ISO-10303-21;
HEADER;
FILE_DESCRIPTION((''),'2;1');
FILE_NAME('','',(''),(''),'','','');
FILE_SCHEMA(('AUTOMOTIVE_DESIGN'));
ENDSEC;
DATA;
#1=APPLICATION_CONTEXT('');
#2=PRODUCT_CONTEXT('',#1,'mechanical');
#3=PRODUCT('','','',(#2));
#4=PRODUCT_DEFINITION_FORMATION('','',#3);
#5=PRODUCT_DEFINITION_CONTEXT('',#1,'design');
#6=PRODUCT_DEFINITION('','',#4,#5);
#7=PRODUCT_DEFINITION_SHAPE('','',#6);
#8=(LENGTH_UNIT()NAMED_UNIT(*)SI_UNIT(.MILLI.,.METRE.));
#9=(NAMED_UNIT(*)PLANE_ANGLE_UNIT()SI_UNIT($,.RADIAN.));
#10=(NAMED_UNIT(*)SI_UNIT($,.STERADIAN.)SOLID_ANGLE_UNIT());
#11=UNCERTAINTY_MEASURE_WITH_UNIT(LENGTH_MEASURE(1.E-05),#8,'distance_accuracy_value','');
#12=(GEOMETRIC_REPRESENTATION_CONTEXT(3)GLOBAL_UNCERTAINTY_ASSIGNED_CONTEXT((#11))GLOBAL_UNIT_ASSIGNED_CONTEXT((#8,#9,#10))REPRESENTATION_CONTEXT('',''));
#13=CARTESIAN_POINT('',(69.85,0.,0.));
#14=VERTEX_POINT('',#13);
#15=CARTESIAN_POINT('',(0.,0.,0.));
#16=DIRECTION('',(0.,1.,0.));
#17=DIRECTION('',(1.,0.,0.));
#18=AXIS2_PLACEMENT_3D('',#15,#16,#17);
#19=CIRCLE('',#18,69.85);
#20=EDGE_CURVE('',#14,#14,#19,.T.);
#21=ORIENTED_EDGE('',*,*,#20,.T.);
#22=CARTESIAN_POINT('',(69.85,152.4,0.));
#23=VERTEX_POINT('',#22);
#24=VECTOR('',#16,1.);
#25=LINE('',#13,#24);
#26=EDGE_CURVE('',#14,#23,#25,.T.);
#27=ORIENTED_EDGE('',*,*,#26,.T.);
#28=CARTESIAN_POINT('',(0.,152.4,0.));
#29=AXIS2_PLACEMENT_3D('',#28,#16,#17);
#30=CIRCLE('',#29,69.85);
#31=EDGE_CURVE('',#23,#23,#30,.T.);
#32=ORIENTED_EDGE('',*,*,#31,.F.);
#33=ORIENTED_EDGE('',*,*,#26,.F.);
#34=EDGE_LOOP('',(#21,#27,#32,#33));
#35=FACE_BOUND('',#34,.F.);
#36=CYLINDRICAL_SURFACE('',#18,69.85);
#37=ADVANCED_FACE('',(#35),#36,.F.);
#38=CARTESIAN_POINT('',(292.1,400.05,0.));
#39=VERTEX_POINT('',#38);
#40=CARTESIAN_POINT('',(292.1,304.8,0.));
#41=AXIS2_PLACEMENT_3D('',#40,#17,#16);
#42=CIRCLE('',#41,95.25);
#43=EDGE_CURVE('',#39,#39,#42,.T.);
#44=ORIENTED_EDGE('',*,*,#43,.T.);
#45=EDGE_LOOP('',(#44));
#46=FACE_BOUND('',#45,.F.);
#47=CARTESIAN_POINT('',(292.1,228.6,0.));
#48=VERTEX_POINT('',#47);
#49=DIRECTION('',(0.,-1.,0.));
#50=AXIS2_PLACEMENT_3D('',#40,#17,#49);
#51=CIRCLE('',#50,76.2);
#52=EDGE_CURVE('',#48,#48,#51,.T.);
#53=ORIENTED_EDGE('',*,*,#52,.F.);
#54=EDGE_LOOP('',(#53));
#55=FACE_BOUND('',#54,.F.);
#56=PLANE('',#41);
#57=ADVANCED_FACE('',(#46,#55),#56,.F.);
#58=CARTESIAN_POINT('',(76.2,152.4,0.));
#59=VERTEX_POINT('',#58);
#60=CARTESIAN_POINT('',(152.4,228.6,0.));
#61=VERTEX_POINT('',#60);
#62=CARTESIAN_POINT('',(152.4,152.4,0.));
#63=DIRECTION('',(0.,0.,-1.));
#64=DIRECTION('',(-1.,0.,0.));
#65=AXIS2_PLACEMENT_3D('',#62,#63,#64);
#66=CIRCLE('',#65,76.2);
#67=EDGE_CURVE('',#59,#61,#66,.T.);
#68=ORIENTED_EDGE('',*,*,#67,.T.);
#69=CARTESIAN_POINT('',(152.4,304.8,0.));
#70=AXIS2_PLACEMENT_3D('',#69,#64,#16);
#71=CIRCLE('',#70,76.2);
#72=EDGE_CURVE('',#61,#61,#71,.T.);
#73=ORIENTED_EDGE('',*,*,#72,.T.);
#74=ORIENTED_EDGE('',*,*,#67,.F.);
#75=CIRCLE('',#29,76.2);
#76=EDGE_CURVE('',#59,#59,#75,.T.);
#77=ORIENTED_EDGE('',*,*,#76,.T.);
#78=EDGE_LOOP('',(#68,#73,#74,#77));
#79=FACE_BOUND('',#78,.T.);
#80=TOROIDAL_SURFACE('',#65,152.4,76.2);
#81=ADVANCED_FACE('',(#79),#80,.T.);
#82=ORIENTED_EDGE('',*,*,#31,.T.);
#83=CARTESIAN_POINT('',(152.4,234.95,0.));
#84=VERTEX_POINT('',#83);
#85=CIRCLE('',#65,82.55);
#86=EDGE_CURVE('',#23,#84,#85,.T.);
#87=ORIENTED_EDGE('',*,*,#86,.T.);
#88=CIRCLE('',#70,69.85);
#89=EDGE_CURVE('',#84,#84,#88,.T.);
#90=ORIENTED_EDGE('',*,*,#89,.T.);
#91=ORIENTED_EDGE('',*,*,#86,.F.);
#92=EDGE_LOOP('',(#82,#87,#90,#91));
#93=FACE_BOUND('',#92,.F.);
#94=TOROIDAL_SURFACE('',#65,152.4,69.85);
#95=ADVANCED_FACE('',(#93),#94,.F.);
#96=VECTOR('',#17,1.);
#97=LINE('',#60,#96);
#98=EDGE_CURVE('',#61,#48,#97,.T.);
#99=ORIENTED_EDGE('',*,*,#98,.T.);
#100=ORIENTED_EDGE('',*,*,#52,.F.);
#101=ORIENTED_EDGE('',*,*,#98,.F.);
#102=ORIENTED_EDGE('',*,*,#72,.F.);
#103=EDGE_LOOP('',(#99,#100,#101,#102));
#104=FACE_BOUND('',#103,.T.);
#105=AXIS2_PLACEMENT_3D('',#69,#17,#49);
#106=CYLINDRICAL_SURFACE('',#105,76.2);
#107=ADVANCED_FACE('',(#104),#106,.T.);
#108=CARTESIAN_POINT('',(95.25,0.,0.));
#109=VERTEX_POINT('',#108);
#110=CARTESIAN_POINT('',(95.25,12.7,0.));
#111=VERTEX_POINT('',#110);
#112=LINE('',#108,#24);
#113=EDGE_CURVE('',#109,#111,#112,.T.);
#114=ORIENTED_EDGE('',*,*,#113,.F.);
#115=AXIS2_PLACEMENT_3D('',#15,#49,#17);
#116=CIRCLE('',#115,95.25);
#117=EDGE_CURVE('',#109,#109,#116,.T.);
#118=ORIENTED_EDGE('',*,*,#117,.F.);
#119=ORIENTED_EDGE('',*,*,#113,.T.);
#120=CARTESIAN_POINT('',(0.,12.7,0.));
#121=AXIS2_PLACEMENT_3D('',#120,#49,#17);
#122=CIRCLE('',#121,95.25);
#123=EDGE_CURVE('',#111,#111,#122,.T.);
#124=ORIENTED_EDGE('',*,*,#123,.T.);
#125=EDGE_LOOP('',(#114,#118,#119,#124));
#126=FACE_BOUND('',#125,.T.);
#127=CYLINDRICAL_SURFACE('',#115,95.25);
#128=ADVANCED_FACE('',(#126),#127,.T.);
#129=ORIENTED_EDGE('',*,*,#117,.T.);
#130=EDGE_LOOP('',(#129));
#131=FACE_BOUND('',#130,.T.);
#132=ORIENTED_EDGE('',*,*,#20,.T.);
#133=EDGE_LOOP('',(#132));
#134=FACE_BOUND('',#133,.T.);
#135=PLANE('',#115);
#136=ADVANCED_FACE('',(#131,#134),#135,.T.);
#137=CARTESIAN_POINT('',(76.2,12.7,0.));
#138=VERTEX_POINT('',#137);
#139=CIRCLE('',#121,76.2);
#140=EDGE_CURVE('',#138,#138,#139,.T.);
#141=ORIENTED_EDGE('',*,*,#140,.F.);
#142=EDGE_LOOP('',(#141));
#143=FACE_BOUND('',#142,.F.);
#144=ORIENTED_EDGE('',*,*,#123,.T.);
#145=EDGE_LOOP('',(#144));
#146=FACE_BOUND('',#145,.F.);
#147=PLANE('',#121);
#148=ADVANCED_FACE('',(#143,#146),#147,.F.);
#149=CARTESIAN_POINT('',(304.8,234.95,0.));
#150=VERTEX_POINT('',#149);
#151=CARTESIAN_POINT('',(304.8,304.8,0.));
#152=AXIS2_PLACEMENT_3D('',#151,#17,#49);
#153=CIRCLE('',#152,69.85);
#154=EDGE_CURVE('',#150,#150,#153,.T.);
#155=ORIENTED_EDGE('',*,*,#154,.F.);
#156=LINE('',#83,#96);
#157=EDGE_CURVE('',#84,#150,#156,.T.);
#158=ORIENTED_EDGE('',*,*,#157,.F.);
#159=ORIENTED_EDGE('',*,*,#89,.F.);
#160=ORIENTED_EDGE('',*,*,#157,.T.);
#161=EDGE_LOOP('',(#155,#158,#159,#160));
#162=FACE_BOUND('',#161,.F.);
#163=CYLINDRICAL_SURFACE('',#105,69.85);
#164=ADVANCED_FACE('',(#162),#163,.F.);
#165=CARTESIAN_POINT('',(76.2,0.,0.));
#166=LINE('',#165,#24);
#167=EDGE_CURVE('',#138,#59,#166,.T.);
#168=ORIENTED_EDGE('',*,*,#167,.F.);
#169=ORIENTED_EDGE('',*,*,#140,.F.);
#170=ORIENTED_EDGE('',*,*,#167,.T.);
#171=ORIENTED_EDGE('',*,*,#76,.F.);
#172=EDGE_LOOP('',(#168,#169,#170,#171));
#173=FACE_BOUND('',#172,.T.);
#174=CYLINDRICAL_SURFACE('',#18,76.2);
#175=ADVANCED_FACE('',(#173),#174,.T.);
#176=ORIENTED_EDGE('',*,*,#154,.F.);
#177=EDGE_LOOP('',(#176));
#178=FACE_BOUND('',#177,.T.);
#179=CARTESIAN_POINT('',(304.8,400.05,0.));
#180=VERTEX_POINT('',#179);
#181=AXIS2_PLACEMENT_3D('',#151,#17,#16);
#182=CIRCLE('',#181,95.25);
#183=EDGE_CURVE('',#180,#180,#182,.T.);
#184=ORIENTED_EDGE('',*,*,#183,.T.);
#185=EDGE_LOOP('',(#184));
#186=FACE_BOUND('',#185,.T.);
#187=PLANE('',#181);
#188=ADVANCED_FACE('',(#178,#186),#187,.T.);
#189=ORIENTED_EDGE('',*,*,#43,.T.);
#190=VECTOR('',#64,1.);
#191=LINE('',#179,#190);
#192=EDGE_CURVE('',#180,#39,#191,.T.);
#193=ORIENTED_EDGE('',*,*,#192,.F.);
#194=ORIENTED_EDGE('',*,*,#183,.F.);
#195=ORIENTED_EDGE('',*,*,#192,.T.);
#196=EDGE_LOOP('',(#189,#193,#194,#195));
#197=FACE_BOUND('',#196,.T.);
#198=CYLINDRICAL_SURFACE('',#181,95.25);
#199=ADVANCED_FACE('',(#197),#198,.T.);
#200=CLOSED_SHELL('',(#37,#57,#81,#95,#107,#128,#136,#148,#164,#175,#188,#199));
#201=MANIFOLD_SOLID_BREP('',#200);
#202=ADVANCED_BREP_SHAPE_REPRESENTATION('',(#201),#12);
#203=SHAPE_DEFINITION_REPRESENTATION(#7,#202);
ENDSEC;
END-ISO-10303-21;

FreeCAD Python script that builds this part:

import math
import FreeCAD as App
import Part
import Sketcher

V = App.Vector
Q = App.Units.Quantity


def faces_at(feature, points):
    """Names of the faces that lie closest to the given points."""
    faces = feature.Shape.Faces
    near = lambda p: min(range(len(faces)), key=lambda i: faces[i].distToShape(Part.Vertex(*p))[0])
    return sorted({f"Face{near(p) + 1}" for p in points})

doc = App.newDocument("Part")
params = doc.addObject("Spreadsheet::Sheet", "Params")
for row, (alias, value) in enumerate([
    ("sketch1_diameter", "6 in"),
    ("sketch2_radius", "6 in"),
    ("sketch2_width", "6 in"),
    ("thickness_wall", "0.25 in"),
    ("sketch3_diameter", "6 in"),
    ("sketch3_diameter2", "7.5 in"),
    ("pad1_length", "0.5 in"),
    ("sketch4_diameter", "6 in"),
    ("sketch4_diameter2", "7.5 in"),
    ("pad2_length", "0.5 in"),
], start=1):
    params.set(f"A{row}", alias)
    params.set(f"B{row}", "=" + value)
    params.setAlias(f"B{row}", alias)

body = doc.addObject("PartDesign::Body", "Body")

sketch1 = doc.addObject("Sketcher::SketchObject", "Sketch")
body.addObject(sketch1)
sketch1.AttachmentSupport = (doc.XZ_Plane, [""])
sketch1.MapMode = "FlatFace"
sketch1.addGeometry(Part.Circle(V(0, 0, 0), V(0, 0, 1), 76), False)
sketch1.addConstraint(Sketcher.Constraint("Coincident", 0, 3, -1, 1))
sketch1.addConstraint(Sketcher.Constraint("Diameter", 0, Q("6 in")))
sketch1.setExpression("Constraints[1]", "Params.sketch1_diameter")

sketch2 = doc.addObject("Sketcher::SketchObject", "Sketch001")
body.addObject(sketch2)
sketch2.AttachmentSupport = (doc.XY_Plane, [""])
sketch2.MapMode = "FlatFace"
sketch2.addGeometry(Part.LineSegment(V(0, 0, 0), V(0, 152, 0)), False)
sketch2.addGeometry(Part.ArcOfCircle(Part.Circle(V(152, 152, 0), V(0, 0, 1), 152), math.radians(90), math.radians(180)), False)
sketch2.addGeometry(Part.LineSegment(V(152, 305, 0), V(305, 305, 0)), False)
sketch2.addConstraint(Sketcher.Constraint("Tangent", 0, 2, 1, 2))
sketch2.addConstraint(Sketcher.Constraint("Tangent", 1, 1, 2, 1))
sketch2.addConstraint(Sketcher.Constraint("Vertical", 0))
sketch2.addConstraint(Sketcher.Constraint("Horizontal", 2))
sketch2.addConstraint(Sketcher.Constraint("Coincident", 0, 1, -1, 1))
sketch2.addConstraint(Sketcher.Constraint("Equal", 2, 0))
sketch2.addConstraint(Sketcher.Constraint("Radius", 1, Q("6 in")))
sketch2.addConstraint(Sketcher.Constraint("DistanceX", 2, 1, 2, 2, Q("6 in")))
sketch2.setExpression("Constraints[6]", "Params.sketch2_radius")
sketch2.setExpression("Constraints[7]", "Params.sketch2_width")
doc.recompute()

additivepipe = doc.addObject("PartDesign::AdditivePipe", "AdditivePipe")
body.addObject(additivepipe)
additivepipe.Profile = sketch1
additivepipe.Spine = (sketch2, ["Edge1", "Edge2", "Edge3"])
doc.recompute()

thickness = doc.addObject("PartDesign::Thickness", "Thickness")
body.addObject(thickness)
thickness.Base = (additivepipe, faces_at(additivepipe, [(0, 0, 0), (304.8, 304.8, 0)]))
thickness.setExpression("Value", "Params.thickness_wall")
thickness.Reversed = True
thickness.Join = "Arc"

sketch3 = doc.addObject("Sketcher::SketchObject", "Sketch002")
body.addObject(sketch3)
sketch3.AttachmentSupport = (doc.XZ_Plane, [""])
sketch3.MapMode = "FlatFace"
sketch3.addGeometry(Part.Circle(V(0, 0, 0), V(0, 0, 1), 95), False)
sketch3.addGeometry(Part.Circle(V(0, 0, 0), V(0, 0, 1), 76), False)
sketch3.addConstraint(Sketcher.Constraint("Coincident", 0, 3, -1, 1))
sketch3.addConstraint(Sketcher.Constraint("Coincident", 1, 3, -1, 1))
sketch3.addConstraint(Sketcher.Constraint("Diameter", 1, Q("6 in")))
sketch3.addConstraint(Sketcher.Constraint("Diameter", 0, Q("7.5 in")))
sketch3.setExpression("Constraints[2]", "Params.sketch3_diameter")
sketch3.setExpression("Constraints[3]", "Params.sketch3_diameter2")
pad1 = doc.addObject("PartDesign::Pad", "Pad")
body.addObject(pad1)
pad1.Profile = sketch3
pad1.setExpression("Length", "Params.pad1_length")
pad1.Reversed = True

sketch4 = doc.addObject("Sketcher::SketchObject", "Sketch003")
body.addObject(sketch4)
sketch4.AttachmentSupport = (doc.YZ_Plane, [""])
sketch4.MapMode = "FlatFace"
sketch4.AttachmentOffset = App.Placement(V(0, 0, 12 * 25.4), App.Rotation())
sketch4.addGeometry(Part.Circle(V(305, 0, 0), V(0, 0, 1), 95), False)
sketch4.addGeometry(Part.Circle(V(305, 0, 0), V(0, 0, 1), 76), False)
sketch4.addConstraint(Sketcher.Constraint("Coincident", 1, 3, 0, 3))
sketch4.addConstraint(Sketcher.Constraint("PointOnObject", 0, 3, -1))
sketch4.addConstraint(Sketcher.Constraint("Diameter", 1, Q("6 in")))
sketch4.addConstraint(Sketcher.Constraint("Diameter", 0, Q("7.5 in")))
sketch4.addConstraint(Sketcher.Constraint("DistanceX", -1, 1, 0, 3, Q("12 in")))
sketch4.setExpression("Constraints[2]", "Params.sketch4_diameter")
sketch4.setExpression("Constraints[3]", "Params.sketch4_diameter2")
pad2 = doc.addObject("PartDesign::Pad", "Pad001")
body.addObject(pad2)
pad2.Profile = sketch4
pad2.setExpression("Length", "Params.pad2_length")
pad2.Reversed = True

doc.recompute()
